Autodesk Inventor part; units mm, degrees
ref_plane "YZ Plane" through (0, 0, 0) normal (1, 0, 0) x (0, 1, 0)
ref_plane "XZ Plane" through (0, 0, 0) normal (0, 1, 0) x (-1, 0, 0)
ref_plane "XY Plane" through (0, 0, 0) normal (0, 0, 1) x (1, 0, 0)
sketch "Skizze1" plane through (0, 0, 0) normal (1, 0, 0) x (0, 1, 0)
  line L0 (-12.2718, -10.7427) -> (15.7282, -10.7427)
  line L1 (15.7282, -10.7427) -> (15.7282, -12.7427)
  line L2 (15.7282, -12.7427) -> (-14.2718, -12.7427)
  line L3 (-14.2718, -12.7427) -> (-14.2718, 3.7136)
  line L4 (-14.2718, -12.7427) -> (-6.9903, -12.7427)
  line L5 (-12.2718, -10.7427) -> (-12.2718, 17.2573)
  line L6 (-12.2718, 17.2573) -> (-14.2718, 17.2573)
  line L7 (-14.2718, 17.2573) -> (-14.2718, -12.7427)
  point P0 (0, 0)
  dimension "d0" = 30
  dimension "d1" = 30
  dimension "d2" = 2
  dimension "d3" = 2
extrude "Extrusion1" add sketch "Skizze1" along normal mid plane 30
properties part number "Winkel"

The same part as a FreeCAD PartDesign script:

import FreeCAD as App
import Part
import Sketcher

V = App.Vector


def add_polygon(sketch, points):
    """Adds a closed chain of lines whose ends are joined by coincident constraints."""
    first, n = sketch.GeometryCount, len(points)
    for a, b in zip(points, points[1:] + points[:1]):
        sketch.addGeometry(Part.LineSegment(App.Vector(*a, 0), App.Vector(*b, 0)), False)
    for i in range(n):
        sketch.addConstraint(Sketcher.Constraint("Coincident", first + i, 2, first + (i + 1) % n, 1))

doc = App.newDocument("Part")
body = doc.addObject("PartDesign::Body", "Body")

sketch1 = doc.addObject("Sketcher::SketchObject", "Sketch")
body.addObject(sketch1)
sketch1.AttachmentSupport = (doc.YZ_Plane, [""])
sketch1.MapMode = "FlatFace"
add_polygon(sketch1, [(15.7282, -10.7427), (-12.2718, -10.7427), (-12.2718, 17.2573), (-14.2718, 17.2573), (-14.2718, -12.7427), (15.7282, -12.7427)])
sketch1.addConstraint(Sketcher.Constraint("Horizontal", 0))
sketch1.addConstraint(Sketcher.Constraint("Vertical", 1))
sketch1.addConstraint(Sketcher.Constraint("Horizontal", 2))
sketch1.addConstraint(Sketcher.Constraint("Vertical", 3))
sketch1.addConstraint(Sketcher.Constraint("Horizontal", 4))
sketch1.addConstraint(Sketcher.Constraint("Vertical", 5))
sketch1.addConstraint(Sketcher.Constraint("Equal", 0, 1))
sketch1.addConstraint(Sketcher.Constraint("Equal", 4, 3))
sketch1.addConstraint(Sketcher.Constraint("DistanceX", 2, 2, 2, 1, 2.0))
sketch1.addConstraint(Sketcher.Constraint("DistanceX", 4, 1, 4, 2, 30.0))
sketch1.addConstraint(Sketcher.Constraint("DistanceX", 0, 2, -1, 1, 12.2718))
sketch1.addConstraint(Sketcher.Constraint("DistanceY", 0, 2, -1, 1, 10.7427))
pad1 = doc.addObject("PartDesign::Pad", "Pad")
body.addObject(pad1)
pad1.Profile = sketch1
pad1.Length = 30
pad1.Midplane = True

doc.recompute()
